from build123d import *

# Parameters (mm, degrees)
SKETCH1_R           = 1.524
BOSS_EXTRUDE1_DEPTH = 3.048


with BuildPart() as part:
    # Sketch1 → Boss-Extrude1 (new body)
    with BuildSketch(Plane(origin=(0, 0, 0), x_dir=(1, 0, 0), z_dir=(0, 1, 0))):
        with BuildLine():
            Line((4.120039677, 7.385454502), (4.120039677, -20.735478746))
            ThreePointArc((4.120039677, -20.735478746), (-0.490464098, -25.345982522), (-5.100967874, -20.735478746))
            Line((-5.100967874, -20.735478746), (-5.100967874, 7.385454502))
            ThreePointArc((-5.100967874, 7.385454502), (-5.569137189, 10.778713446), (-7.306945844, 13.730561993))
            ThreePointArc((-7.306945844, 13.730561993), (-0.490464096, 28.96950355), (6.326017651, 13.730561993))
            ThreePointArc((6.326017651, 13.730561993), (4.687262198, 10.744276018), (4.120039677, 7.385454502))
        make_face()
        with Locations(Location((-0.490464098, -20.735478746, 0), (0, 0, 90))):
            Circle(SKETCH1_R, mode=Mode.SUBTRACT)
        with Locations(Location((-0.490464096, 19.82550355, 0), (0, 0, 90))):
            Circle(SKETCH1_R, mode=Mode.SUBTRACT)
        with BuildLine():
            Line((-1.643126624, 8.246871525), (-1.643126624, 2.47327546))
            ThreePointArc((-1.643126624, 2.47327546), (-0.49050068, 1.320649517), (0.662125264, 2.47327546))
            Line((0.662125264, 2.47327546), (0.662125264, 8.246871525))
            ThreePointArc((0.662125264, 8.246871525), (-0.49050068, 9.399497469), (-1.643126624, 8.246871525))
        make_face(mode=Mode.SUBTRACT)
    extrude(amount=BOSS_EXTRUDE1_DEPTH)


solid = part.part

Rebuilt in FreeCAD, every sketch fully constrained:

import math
import FreeCAD as App
import Part
import Sketcher
Q = App.Units.Quantity

doc = App.newDocument("Part")
params = doc.addObject("Spreadsheet::Sheet", "Params")
for row, (alias, value) in enumerate([
    ("sketch1_diameter", "0.12 in"),
    ("sketch1_radius", "0.36 in"),
    ("pad1_length", "0.12 in"),
], start=1):
    params.set(f"A{row}", alias)
    params.set(f"B{row}", "=" + value)
    params.setAlias(f"B{row}", alias)

body = doc.addObject("PartDesign::Body", "Body")

# Sketch on XZ plane
sketch1 = body.newObject("Sketcher::SketchObject", "Sketch")
sketch1.AttachmentSupport = (doc.getObject("XZ_Plane"), [""])
sketch1.MapMode = "FlatFace"
sketch1.addGeometry(Part.LineSegment(App.Vector(4.1, 20.7, 0), App.Vector(4.1, -7.4, 0)), False)
sketch1.addGeometry(Part.ArcOfCircle(Part.Circle(App.Vector(14.3, -7.4, 0), App.Vector(0, 0, 1), 10.2), math.radians(180), math.radians(218)), False)
sketch1.addGeometry(Part.ArcOfCircle(Part.Circle(App.Vector(-0.5, -19.8, 0), App.Vector(0, 0, 1), 9.1), math.radians(138), math.radians(402)), False)
sketch1.addGeometry(Part.ArcOfCircle(Part.Circle(App.Vector(-13.8, -7.9, 0), App.Vector(0, 0, 1), 8.7), math.radians(-42), math.radians(3)), False)
sketch1.addGeometry(Part.LineSegment(App.Vector(-5.1, -7.4, 0), App.Vector(-5.1, 20.7, 0)), False)
sketch1.addGeometry(Part.ArcOfCircle(Part.Circle(App.Vector(-0.5, 20.7, 0), App.Vector(0, 0, 1), 4.6), math.radians(0), math.radians(180)), False)
sketch1.addGeometry(Part.Circle(App.Vector(-0.5, 20.7, 0), App.Vector(0, 0, 1), 1.5), False)
sketch1.addGeometry(Part.Circle(App.Vector(-0.5, -19.8, 0), App.Vector(0, 0, 1), 1.5), False)
sketch1.addGeometry(Part.ArcOfCircle(Part.Circle(App.Vector(-0.5, -8.2, 0), App.Vector(0, 0, 1), 1.2), math.radians(180), math.radians(360)), False)
sketch1.addGeometry(Part.LineSegment(App.Vector(0.7, -8.2, 0), App.Vector(0.7, -2.5, 0)), False)
sketch1.addGeometry(Part.ArcOfCircle(Part.Circle(App.Vector(-0.5, -2.5, 0), App.Vector(0, 0, 1), 1.2), math.radians(0), math.radians(180)), False)
sketch1.addGeometry(Part.LineSegment(App.Vector(-1.6, -2.5, 0), App.Vector(-1.6, -8.2, 0)), False)
sketch1.addConstraint(Sketcher.Constraint("Tangent", 0, 2, 1, 1))
sketch1.addConstraint(Sketcher.Constraint("Coincident", 1, 2, 2, 2))
sketch1.addConstraint(Sketcher.Constraint("Tangent", 2, 1, 3, 1))
sketch1.addConstraint(Sketcher.Constraint("Coincident", 3, 2, 4, 1))
sketch1.addConstraint(Sketcher.Constraint("Tangent", 4, 2, 5, 2))
sketch1.addConstraint(Sketcher.Constraint("Tangent", 5, 1, 0, 1))
sketch1.addConstraint(Sketcher.Constraint("Tangent", 8, 2, 9, 1))
sketch1.addConstraint(Sketcher.Constraint("Tangent", 9, 2, 10, 1))
sketch1.addConstraint(Sketcher.Constraint("Tangent", 10, 2, 11, 1))
sketch1.addConstraint(Sketcher.Constraint("Tangent", 11, 2, 8, 1))
sketch1.addConstraint(Sketcher.Constraint("Vertical", 0))
sketch1.addConstraint(Sketcher.Constraint("Vertical", 4))
sketch1.addConstraint(Sketcher.Constraint("Vertical", 9))
sketch1.addConstraint(Sketcher.Constraint("Vertical", 11))
sketch1.addConstraint(Sketcher.Constraint("Coincident", 6, 3, 5, 3))
sketch1.addConstraint(Sketcher.Constraint("Coincident", 7, 3, 2, 3))
sketch1.addConstraint(Sketcher.Constraint("Equal", 6, 7))
sketch1.addConstraint(Sketcher.Constraint("Horizontal", 1, 2, 2, 1))
sketch1.addConstraint(Sketcher.Constraint("Horizontal", 0, 2, 3, 2))
sketch1.addConstraint(Sketcher.Constraint("Vertical", 2, 3, 5, 3))
sketch1.addConstraint(Sketcher.Constraint("Diameter", 6, Q("0.12 in")))
sketch1.addConstraint(Sketcher.Constraint("Radius", 2, Q("0.36 in")))
sketch1.addConstraint(Sketcher.Constraint("Radius", 1, 10.228282))
sketch1.addConstraint(Sketcher.Constraint("Radius", 3, 8.729013))
sketch1.addConstraint(Sketcher.Constraint("Radius", 5, 4.610504))
sketch1.addConstraint(Sketcher.Constraint("Radius", 8, 1.152626))
sketch1.addConstraint(Sketcher.Constraint("DistanceX", 8, 3, -1, 1, 0.490501))
sketch1.addConstraint(Sketcher.Constraint("DistanceY", 0, 2, 0, 1, 28.120933))
sketch1.addConstraint(Sketcher.Constraint("DistanceY", 9, 1, 9, 2, 5.773596))
sketch1.addConstraint(Sketcher.Constraint("DistanceX", -1, 1, 1, 3, 14.348321))
sketch1.addConstraint(Sketcher.Constraint("DistanceY", 3, 3, -1, 1, 7.91223))
sketch1.addConstraint(Sketcher.Constraint("DistanceY", 8, 3, -1, 1, 8.246872))
sketch1.setExpression("Constraints[20]", "Params.sketch1_diameter")
sketch1.setExpression("Constraints[21]", "Params.sketch1_radius")
pad1 = body.newObject("PartDesign::Pad", "Pad")
pad1.Profile = sketch1
pad1.setExpression("Length", "Params.pad1_length")
pad1.Reversed = True

doc.recompute()
